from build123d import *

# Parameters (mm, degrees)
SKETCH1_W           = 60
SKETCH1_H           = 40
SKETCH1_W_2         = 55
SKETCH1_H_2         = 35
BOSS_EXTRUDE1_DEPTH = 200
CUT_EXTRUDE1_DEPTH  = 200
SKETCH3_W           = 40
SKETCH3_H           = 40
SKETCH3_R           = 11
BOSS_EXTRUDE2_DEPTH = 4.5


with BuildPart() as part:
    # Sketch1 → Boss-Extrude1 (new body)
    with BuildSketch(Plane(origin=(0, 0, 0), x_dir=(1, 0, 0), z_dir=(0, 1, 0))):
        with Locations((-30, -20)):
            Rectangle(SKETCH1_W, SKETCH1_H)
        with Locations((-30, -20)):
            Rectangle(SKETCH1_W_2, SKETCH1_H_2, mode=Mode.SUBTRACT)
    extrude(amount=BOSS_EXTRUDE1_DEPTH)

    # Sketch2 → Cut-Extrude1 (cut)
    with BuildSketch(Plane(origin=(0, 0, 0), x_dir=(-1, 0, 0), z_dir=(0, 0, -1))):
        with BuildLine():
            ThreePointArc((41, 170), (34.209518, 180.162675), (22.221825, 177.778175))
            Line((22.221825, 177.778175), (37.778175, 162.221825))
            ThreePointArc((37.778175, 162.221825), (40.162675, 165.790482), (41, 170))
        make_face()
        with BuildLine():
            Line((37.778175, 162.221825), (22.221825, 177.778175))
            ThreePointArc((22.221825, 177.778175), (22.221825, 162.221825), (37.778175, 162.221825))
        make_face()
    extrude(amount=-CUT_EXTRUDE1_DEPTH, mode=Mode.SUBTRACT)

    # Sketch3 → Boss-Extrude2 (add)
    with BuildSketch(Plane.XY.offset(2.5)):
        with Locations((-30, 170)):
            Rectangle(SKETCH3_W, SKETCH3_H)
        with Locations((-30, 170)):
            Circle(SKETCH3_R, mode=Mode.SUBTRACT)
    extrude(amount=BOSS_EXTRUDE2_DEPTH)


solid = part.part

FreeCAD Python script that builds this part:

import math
import FreeCAD as App
import Part
import Sketcher
from FreeCAD import Vector
Q = App.Units.Quantity


def add_polygon(sketch, points):
    """Adds a closed chain of lines whose ends are joined by coincident constraints."""
    first, n = sketch.GeometryCount, len(points)
    for a, b in zip(points, points[1:] + points[:1]):
        sketch.addGeometry(Part.LineSegment(App.Vector(*a, 0), App.Vector(*b, 0)), False)
    for i in range(n):
        sketch.addConstraint(Sketcher.Constraint("Coincident", first + i, 2, first + (i + 1) % n, 1))

doc = App.newDocument("Part")
body = doc.addObject("PartDesign::Body", "Body")

# Sketch on XZ plane
sketch1 = body.newObject("Sketcher::SketchObject", "Sketch")
sketch1.AttachmentSupport = (doc.getObject("XZ_Plane"), [""])
sketch1.MapMode = "FlatFace"
add_polygon(sketch1, [(-60, 0), (-60, 40), (0, 40), (0, 0)])  # lines 0-3
add_polygon(sketch1, [(-2, 38), (-58, 38), (-58, 2), (-2, 2)])  # lines 4-7
sketch1.addConstraint(Sketcher.Constraint("Vertical", 0))
sketch1.addConstraint(Sketcher.Constraint("Horizontal", 1))
sketch1.addConstraint(Sketcher.Constraint("Vertical", 2))
sketch1.addConstraint(Sketcher.Constraint("Horizontal", 3))
sketch1.addConstraint(Sketcher.Constraint("Horizontal", 4))
sketch1.addConstraint(Sketcher.Constraint("Vertical", 5))
sketch1.addConstraint(Sketcher.Constraint("Horizontal", 6))
sketch1.addConstraint(Sketcher.Constraint("Vertical", 7))
sketch1.addConstraint(Sketcher.Constraint("Coincident", 2, 2, -1, 1))
sketch1.addConstraint(Sketcher.Constraint("DistanceX", 1, 1, 1, 2, Q("60 mm")))
sketch1.addConstraint(Sketcher.Constraint("DistanceX", 4, 2, 4, 1, Q("55 mm")))
sketch1.addConstraint(Sketcher.Constraint("DistanceY", 0, 1, 0, 2, Q("40 mm")))
sketch1.addConstraint(Sketcher.Constraint("DistanceY", 5, 2, 5, 1, Q("35 mm")))
sketch1.addConstraint(Sketcher.Constraint("DistanceX", 4, 2, -1, 1, Q("57.5 mm")))
sketch1.addConstraint(Sketcher.Constraint("DistanceY", -1, 1, 4, 2, Q("37.5 mm")))
pad1 = body.newObject("PartDesign::Pad", "Pad")
pad1.Profile = sketch1
pad1.Length = 200
pad1.Reversed = True

# Sketch on XY plane
sketch2 = body.newObject("Sketcher::SketchObject", "Sketch001")
sketch2.AttachmentSupport = (doc.getObject("XY_Plane"), [""])
sketch2.MapMode = "FlatFace"
sketch2.addGeometry(Part.ArcOfCircle(Part.Circle(Vector(-30, 170, 0), Vector(0, 0, 1), 11), math.radians(45), math.radians(180)), False)
sketch2.addGeometry(Part.ArcOfCircle(Part.Circle(Vector(-30, 170, 0), Vector(0, 0, 1), 11), math.radians(-135), math.radians(45)), False)
sketch2.addGeometry(Part.ArcOfCircle(Part.Circle(Vector(-30, 170, 0), Vector(0, 0, 1), 11), math.radians(180), math.radians(225)), False)
sketch2.addConstraint(Sketcher.Constraint("Tangent", 0, 1, 1, 2))
sketch2.addConstraint(Sketcher.Constraint("Tangent", 1, 1, 2, 2))
sketch2.addConstraint(Sketcher.Constraint("Tangent", 2, 1, 0, 2))
sketch2.addConstraint(Sketcher.Constraint("Horizontal", 1, 3, 2, 1))
sketch2.addConstraint(Sketcher.Constraint("Radius", 0, Q("11 mm")))
sketch2.addConstraint(Sketcher.Constraint("DistanceX", 0, 3, -1, 1, Q("30 mm")))
sketch2.addConstraint(Sketcher.Constraint("DistanceY", -1, 1, 0, 3, Q("170 mm")))
sketch2.addConstraint(Sketcher.Constraint("DistanceX", 1, 1, 0, 1, Q("15.55635 mm")))
sketch2.addConstraint(Sketcher.Constraint("DistanceX", 0, 1, -1, 1, Q("22.221825 mm")))
pocket1 = body.newObject("PartDesign::Pocket", "Pocket")
pocket1.Profile = sketch2
pocket1.Length = 200
pocket1.Reversed = True

# Sketch on XY plane
sketch3 = body.newObject("Sketcher::SketchObject", "Sketch002")
sketch3.AttachmentSupport = (doc.getObject("XY_Plane"), [""])
sketch3.MapMode = "FlatFace"
sketch3.AttachmentOffset = App.Placement(Vector(0, 0, 2.5), App.Rotation())
add_polygon(sketch3, [(-50, 190), (-50, 150), (-10, 150), (-10, 190)])  # lines 0-3
sketch3.addGeometry(Part.Circle(Vector(-30, 170, 0), Vector(0, 0, 1), 11), False)  # 4
sketch3.addConstraint(Sketcher.Constraint("Vertical", 0))
sketch3.addConstraint(Sketcher.Constraint("Horizontal", 1))
sketch3.addConstraint(Sketcher.Constraint("Vertical", 2))
sketch3.addConstraint(Sketcher.Constraint("Horizontal", 3))
sketch3.addConstraint(Sketcher.Constraint("Equal", 3, 0))
sketch3.addConstraint(Sketcher.Constraint("Diameter", 4, Q("22 mm")))
sketch3.addConstraint(Sketcher.Constraint("DistanceX", 1, 1, 1, 2, Q("40 mm")))
sketch3.addConstraint(Sketcher.Constraint("DistanceX", 4, 3, -1, 1, Q("30 mm")))
sketch3.addConstraint(Sketcher.Constraint("DistanceY", -1, 1, 4, 3, Q("170 mm")))
sketch3.addConstraint(Sketcher.Constraint("DistanceX", 0, 2, -1, 1, Q("50 mm")))
sketch3.addConstraint(Sketcher.Constraint("DistanceY", -1, 1, 0, 2, Q("150 mm")))
pad2 = body.newObject("PartDesign::Pad", "Pad001")
pad2.Profile = sketch3
pad2.Length = 4.5

doc.recompute()
